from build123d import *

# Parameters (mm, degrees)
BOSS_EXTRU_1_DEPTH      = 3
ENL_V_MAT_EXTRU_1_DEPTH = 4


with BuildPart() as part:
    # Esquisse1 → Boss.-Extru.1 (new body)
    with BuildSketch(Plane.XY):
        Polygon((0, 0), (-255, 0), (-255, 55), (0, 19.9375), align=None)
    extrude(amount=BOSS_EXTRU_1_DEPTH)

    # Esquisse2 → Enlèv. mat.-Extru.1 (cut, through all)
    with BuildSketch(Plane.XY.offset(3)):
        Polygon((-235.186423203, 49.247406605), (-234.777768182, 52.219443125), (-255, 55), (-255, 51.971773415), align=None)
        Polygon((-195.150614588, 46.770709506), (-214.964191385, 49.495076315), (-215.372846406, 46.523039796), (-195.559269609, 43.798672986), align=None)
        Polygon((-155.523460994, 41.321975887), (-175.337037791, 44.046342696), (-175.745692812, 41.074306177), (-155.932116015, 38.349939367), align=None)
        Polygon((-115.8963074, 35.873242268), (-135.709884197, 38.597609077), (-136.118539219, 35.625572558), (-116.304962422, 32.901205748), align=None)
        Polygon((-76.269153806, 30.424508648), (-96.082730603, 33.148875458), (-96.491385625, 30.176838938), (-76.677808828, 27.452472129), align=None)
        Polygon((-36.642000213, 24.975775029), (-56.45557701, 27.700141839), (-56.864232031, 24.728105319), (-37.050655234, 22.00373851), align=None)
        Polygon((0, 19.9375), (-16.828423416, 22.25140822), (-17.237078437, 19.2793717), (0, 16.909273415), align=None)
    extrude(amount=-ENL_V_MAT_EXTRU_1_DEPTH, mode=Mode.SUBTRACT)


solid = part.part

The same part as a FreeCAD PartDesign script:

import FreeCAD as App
import Part
import Sketcher
from FreeCAD import Vector
Q = App.Units.Quantity


def add_polygon(sketch, points):
    """Adds a closed chain of lines whose ends are joined by coincident constraints."""
    first, n = sketch.GeometryCount, len(points)
    for a, b in zip(points, points[1:] + points[:1]):
        sketch.addGeometry(Part.LineSegment(App.Vector(*a, 0), App.Vector(*b, 0)), False)
    for i in range(n):
        sketch.addConstraint(Sketcher.Constraint("Coincident", first + i, 2, first + (i + 1) % n, 1))

doc = App.newDocument("Part")
body = doc.addObject("PartDesign::Body", "Body")

sketch1 = body.newObject("Sketcher::SketchObject", "Sketch")
sketch1.AttachmentSupport = (doc.getObject("XY_Plane"), [""])
sketch1.MapMode = "FlatFace"
add_polygon(sketch1, [(-255, 0), (0, 0), (0, 19.9375), (-255, 55)])
sketch1.addConstraint([
    Sketcher.Constraint("Horizontal", 0),
    Sketcher.Constraint("Vertical", 1),
    Sketcher.Constraint("Vertical", 3),
    Sketcher.Constraint("Coincident", 0, 2, -1, 1),
    Sketcher.Constraint("DistanceX", 0, 1, 0, 2, Q("255 mm")),
    Sketcher.Constraint("DistanceY", 3, 2, 3, 1, Q("55 mm")),
    Sketcher.Constraint("DistanceY", 1, 1, 1, 2, Q("19.9375 mm")),
])
pad1 = body.newObject("PartDesign::Pad", "Pad")
pad1.Profile = sketch1
pad1.Length = 3

sketch2 = body.newObject("Sketcher::SketchObject", "Sketch001")
sketch2.AttachmentSupport = (doc.getObject("XY_Plane"), [""])
sketch2.MapMode = "FlatFace"
sketch2.AttachmentOffset = App.Placement(Vector(0, 0, 3), App.Rotation())
add_polygon(sketch2, [(-235.186423, 49.247407), (-234.777768, 52.219443), (-255, 55), (-255, 51.971773)])
add_polygon(sketch2, [(-195.150615, 46.77071), (-214.964191, 49.495076), (-215.372846, 46.52304), (-195.55927, 43.798673)])
add_polygon(sketch2, [(-155.523461, 41.321976), (-175.337038, 44.046343), (-175.745693, 41.074306), (-155.932116, 38.349939)])
add_polygon(sketch2, [(-115.896307, 35.873242), (-135.709884, 38.597609), (-136.118539, 35.625573), (-116.304962, 32.901206)])
add_polygon(sketch2, [(-76.269154, 30.424509), (-96.082731, 33.148875), (-96.491386, 30.176839), (-76.677809, 27.452472)])
add_polygon(sketch2, [(-36.642, 24.975775), (-56.455577, 27.700142), (-56.864232, 24.728105), (-37.050655, 22.003739)])
add_polygon(sketch2, [(0, 19.9375), (-16.828423, 22.251408), (-17.237078, 19.279372), (0, 16.909273)])
sketch2.addConstraint([
    Sketcher.Constraint("Vertical", 2),
    Sketcher.Constraint("Vertical", 27),
    Sketcher.Constraint("PointOnObject", 26, 2, -2),
    Sketcher.Constraint("Perpendicular", 0, 1),
    Sketcher.Constraint("Parallel", 1, 3),
    Sketcher.Constraint("Parallel", 3, 4),
    Sketcher.Constraint("Perpendicular", 4, 5),
    Sketcher.Constraint("Perpendicular", 5, 6),
    Sketcher.Constraint("Perpendicular", 6, 7),
    Sketcher.Constraint("Perpendicular", 7, 8),
    Sketcher.Constraint("Perpendicular", 8, 9),
    Sketcher.Constraint("Perpendicular", 9, 10),
    Sketcher.Constraint("Perpendicular", 10, 11),
    Sketcher.Constraint("Perpendicular", 11, 12),
    Sketcher.Constraint("Perpendicular", 12, 13),
    Sketcher.Constraint("Perpendicular", 13, 14),
    Sketcher.Constraint("Perpendicular", 14, 15),
    Sketcher.Constraint("Perpendicular", 15, 16),
    Sketcher.Constraint("Perpendicular", 16, 17),
    Sketcher.Constraint("Perpendicular", 17, 18),
    Sketcher.Constraint("Perpendicular", 18, 19),
    Sketcher.Constraint("Perpendicular", 19, 20),
    Sketcher.Constraint("Perpendicular", 20, 21),
    Sketcher.Constraint("Perpendicular", 21, 22),
    Sketcher.Constraint("Perpendicular", 22, 23),
    Sketcher.Constraint("Perpendicular", 23, 24),
    Sketcher.Constraint("Perpendicular", 24, 25),
    Sketcher.Constraint("Perpendicular", 25, 26),
    Sketcher.Constraint("Equal", 2, 27),
    Sketcher.Constraint("Equal", 3, 4),
    Sketcher.Constraint("Equal", 0, 5),
    Sketcher.Constraint("Equal", 6, 8),
    Sketcher.Constraint("Equal", 7, 9),
    Sketcher.Constraint("Equal", 10, 12),
    Sketcher.Constraint("Equal", 11, 13),
    Sketcher.Constraint("Equal", 14, 16),
    Sketcher.Constraint("Equal", 15, 17),
    Sketcher.Constraint("Equal", 18, 20),
    Sketcher.Constraint("Equal", 19, 21),
    Sketcher.Constraint("Distance", 0, Q("3 mm")),
    Sketcher.Constraint("Distance", 3, Q("20 mm")),
    Sketcher.Constraint("DistanceX", 1, 2, -1, 1, Q("255 mm")),
    Sketcher.Constraint("DistanceY", -1, 1, 1, 2, Q("55 mm")),
    Sketcher.Constraint("DistanceX", 23, 2, -1, 1, Q("36.642 mm")),
    Sketcher.Constraint("Distance", 1, Q("20.4125 mm")),
    Sketcher.Constraint("DistanceY", -1, 1, 27, 2, Q("19.9375 mm")),
    Sketcher.Constraint("DistanceX", 0, 2, 6, 2, Q("39.218499 mm")),
    Sketcher.Constraint("DistanceY", 6, 2, 2, 2, Q("8.1731 mm")),
    Sketcher.Constraint("DistanceY", 8, 2, 0, 2, Q("8.1731 mm")),
    Sketcher.Constraint("DistanceX", 4, 2, 9, 2, Q("39.218499 mm")),
    Sketcher.Constraint("DistanceY", 12, 2, 7, 2, Q("8.1731 mm")),
    Sketcher.Constraint("DistanceX", 8, 2, 13, 2, Q("39.218499 mm")),
    Sketcher.Constraint("DistanceY", 16, 2, 11, 2, Q("8.1731 mm")),
    Sketcher.Constraint("DistanceX", 12, 2, 17, 2, Q("39.218499 mm")),
    Sketcher.Constraint("DistanceY", 20, 2, 15, 2, Q("8.1731 mm")),
    Sketcher.Constraint("DistanceY", 24, 2, 19, 2, Q("8.1731 mm")),
])
pocket1 = body.newObject("PartDesign::Pocket", "Pocket")
pocket1.Profile = sketch2
pocket1.Type = "ThroughAll"

doc.recompute()
